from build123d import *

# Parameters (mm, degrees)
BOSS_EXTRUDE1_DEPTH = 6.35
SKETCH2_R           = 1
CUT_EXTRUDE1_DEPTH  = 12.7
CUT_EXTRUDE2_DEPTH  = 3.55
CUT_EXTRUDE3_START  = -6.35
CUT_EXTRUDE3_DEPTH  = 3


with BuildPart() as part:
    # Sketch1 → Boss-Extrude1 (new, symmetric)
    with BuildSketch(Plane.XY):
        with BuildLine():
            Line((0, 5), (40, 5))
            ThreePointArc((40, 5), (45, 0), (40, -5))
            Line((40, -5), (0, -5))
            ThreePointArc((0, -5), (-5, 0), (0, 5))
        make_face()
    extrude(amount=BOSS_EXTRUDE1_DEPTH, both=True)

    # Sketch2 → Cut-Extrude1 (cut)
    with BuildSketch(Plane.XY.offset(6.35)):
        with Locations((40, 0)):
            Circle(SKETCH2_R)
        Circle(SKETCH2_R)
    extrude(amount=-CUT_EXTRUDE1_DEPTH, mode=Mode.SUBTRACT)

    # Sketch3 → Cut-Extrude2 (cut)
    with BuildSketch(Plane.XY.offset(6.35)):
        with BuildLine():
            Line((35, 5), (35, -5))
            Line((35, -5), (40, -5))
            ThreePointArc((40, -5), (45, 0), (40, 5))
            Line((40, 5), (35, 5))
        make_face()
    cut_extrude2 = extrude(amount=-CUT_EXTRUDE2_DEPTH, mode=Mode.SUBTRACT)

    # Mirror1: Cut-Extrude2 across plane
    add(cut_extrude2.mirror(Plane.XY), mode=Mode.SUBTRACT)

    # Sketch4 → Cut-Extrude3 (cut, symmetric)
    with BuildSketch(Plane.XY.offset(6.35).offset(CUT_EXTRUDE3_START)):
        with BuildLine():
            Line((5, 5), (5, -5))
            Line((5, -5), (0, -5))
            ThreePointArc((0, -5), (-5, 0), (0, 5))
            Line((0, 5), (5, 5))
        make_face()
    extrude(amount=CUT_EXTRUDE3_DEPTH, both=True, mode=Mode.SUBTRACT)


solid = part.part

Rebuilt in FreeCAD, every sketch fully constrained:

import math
import FreeCAD as App
import Part
import Sketcher
Q = App.Units.Quantity

doc = App.newDocument("Part")
body = doc.addObject("PartDesign::Body", "Body")

# Sketch on XY plane
sketch1 = body.newObject("Sketcher::SketchObject", "Sketch")
sketch1.AttachmentSupport = (doc.getObject("XY_Plane"), [""])
sketch1.MapMode = "FlatFace"
sketch1.addGeometry([
    Part.LineSegment(App.Vector(40, 5, 0), App.Vector(0, 5, 0)),
    Part.ArcOfCircle(Part.Circle(App.Vector(0, 0, 0), App.Vector(0, 0, 1), 5), math.radians(90), math.radians(270)),
    Part.LineSegment(App.Vector(0, -5, 0), App.Vector(40, -5, 0)),
    Part.ArcOfCircle(Part.Circle(App.Vector(40, 0, 0), App.Vector(0, 0, 1), 5), math.radians(-90), math.radians(90)),
], False)
sketch1.addConstraint([
    Sketcher.Constraint("Tangent", 0, 2, 1, 1),
    Sketcher.Constraint("Tangent", 1, 2, 2, 1),
    Sketcher.Constraint("Tangent", 2, 2, 3, 1),
    Sketcher.Constraint("Tangent", 3, 2, 0, 1),
    Sketcher.Constraint("Horizontal", 0),
    Sketcher.Constraint("Horizontal", 2),
    Sketcher.Constraint("Coincident", 1, 3, -1, 1),
    Sketcher.Constraint("Radius", 1, Q("5 mm")),
    Sketcher.Constraint("DistanceX", 0, 2, 0, 1, Q("40 mm")),
])
pad1 = body.newObject("PartDesign::Pad", "Pad")
pad1.Profile = sketch1
pad1.Length = 12.7
pad1.Midplane = True

# Sketch on XY plane
sketch2 = body.newObject("Sketcher::SketchObject", "Sketch001")
sketch2.AttachmentSupport = (doc.getObject("XY_Plane"), [""])
sketch2.MapMode = "FlatFace"
sketch2.AttachmentOffset = App.Placement(App.Vector(0, 0, 6.35), App.Rotation())
sketch2.addGeometry([
    Part.Circle(App.Vector(40, 0, 0), App.Vector(0, 0, 1), 1),
    Part.Circle(App.Vector(0, 0, 0), App.Vector(0, 0, 1), 1),
], False)
sketch2.addConstraint([
    Sketcher.Constraint("Coincident", 1, 3, -1, 1),
    Sketcher.Constraint("Equal", 0, 1),
    Sketcher.Constraint("PointOnObject", 0, 3, -1),
    Sketcher.Constraint("Diameter", 0, Q("2 mm")),
    Sketcher.Constraint("DistanceX", -1, 1, 0, 3, Q("40 mm")),
])
pocket1 = body.newObject("PartDesign::Pocket", "Pocket")
pocket1.Profile = sketch2
pocket1.Length = 12.7

# Sketch on XY plane
sketch3 = body.newObject("Sketcher::SketchObject", "Sketch002")
sketch3.AttachmentSupport = (doc.getObject("XY_Plane"), [""])
sketch3.MapMode = "FlatFace"
sketch3.AttachmentOffset = App.Placement(App.Vector(0, 0, 6.35), App.Rotation())
sketch3.addGeometry([
    Part.LineSegment(App.Vector(35, 5, 0), App.Vector(35, -5, 0)),
    Part.LineSegment(App.Vector(35, -5, 0), App.Vector(40, -5, 0)),
    Part.ArcOfCircle(Part.Circle(App.Vector(40, 0, 0), App.Vector(0, 0, 1), 5), math.radians(-90), math.radians(90)),
    Part.LineSegment(App.Vector(40, 5, 0), App.Vector(35, 5, 0)),
], False)
sketch3.addConstraint([
    Sketcher.Constraint("Coincident", 0, 2, 1, 1),
    Sketcher.Constraint("Tangent", 1, 2, 2, 1),
    Sketcher.Constraint("Tangent", 2, 2, 3, 1),
    Sketcher.Constraint("Coincident", 3, 2, 0, 1),
    Sketcher.Constraint("Vertical", 0),
    Sketcher.Constraint("Horizontal", 1),
    Sketcher.Constraint("Horizontal", 3),
    Sketcher.Constraint("PointOnObject", 2, 3, -1),
    Sketcher.Constraint("Radius", 2, Q("5 mm")),
    Sketcher.Constraint("DistanceX", 1, 1, 1, 2, Q("5 mm")),
    Sketcher.Constraint("DistanceX", -1, 1, 2, 3, Q("40 mm")),
])
pocket2 = body.newObject("PartDesign::Pocket", "Pocket001")
pocket2.Profile = sketch3
pocket2.Length = 3.55
doc.recompute()

mirrored = body.newObject("PartDesign::Mirrored", "Mirrored")
mirrored.Originals = [pocket2]
mirrored.MirrorPlane = (doc.getObject("XY_Plane"), [""])
body.Tip = mirrored

# Sketch on XY plane
sketch4 = body.newObject("Sketcher::SketchObject", "Sketch003")
sketch4.AttachmentSupport = (doc.getObject("XY_Plane"), [""])
sketch4.MapMode = "FlatFace"
sketch4.addGeometry([
    Part.LineSegment(App.Vector(5, -5, 0), App.Vector(5, 5, 0)),
    Part.LineSegment(App.Vector(5, 5, 0), App.Vector(0, 5, 0)),
    Part.ArcOfCircle(Part.Circle(App.Vector(0, 0, 0), App.Vector(0, 0, 1), 5), math.radians(90), math.radians(270)),
    Part.LineSegment(App.Vector(0, -5, 0), App.Vector(5, -5, 0)),
], False)
sketch4.addConstraint([
    Sketcher.Constraint("Coincident", 0, 2, 1, 1),
    Sketcher.Constraint("Tangent", 1, 2, 2, 1),
    Sketcher.Constraint("Tangent", 2, 2, 3, 1),
    Sketcher.Constraint("Coincident", 3, 2, 0, 1),
    Sketcher.Constraint("Vertical", 0),
    Sketcher.Constraint("Horizontal", 1),
    Sketcher.Constraint("Horizontal", 3),
    Sketcher.Constraint("Coincident", 2, 3, -1, 1),
    Sketcher.Constraint("Radius", 2, Q("5 mm")),
    Sketcher.Constraint("DistanceX", 1, 2, 1, 1, Q("5 mm")),
])
pocket3 = body.newObject("PartDesign::Pocket", "Pocket002")
pocket3.Profile = sketch4
pocket3.Length = 6
pocket3.Midplane = True

doc.recompute()
